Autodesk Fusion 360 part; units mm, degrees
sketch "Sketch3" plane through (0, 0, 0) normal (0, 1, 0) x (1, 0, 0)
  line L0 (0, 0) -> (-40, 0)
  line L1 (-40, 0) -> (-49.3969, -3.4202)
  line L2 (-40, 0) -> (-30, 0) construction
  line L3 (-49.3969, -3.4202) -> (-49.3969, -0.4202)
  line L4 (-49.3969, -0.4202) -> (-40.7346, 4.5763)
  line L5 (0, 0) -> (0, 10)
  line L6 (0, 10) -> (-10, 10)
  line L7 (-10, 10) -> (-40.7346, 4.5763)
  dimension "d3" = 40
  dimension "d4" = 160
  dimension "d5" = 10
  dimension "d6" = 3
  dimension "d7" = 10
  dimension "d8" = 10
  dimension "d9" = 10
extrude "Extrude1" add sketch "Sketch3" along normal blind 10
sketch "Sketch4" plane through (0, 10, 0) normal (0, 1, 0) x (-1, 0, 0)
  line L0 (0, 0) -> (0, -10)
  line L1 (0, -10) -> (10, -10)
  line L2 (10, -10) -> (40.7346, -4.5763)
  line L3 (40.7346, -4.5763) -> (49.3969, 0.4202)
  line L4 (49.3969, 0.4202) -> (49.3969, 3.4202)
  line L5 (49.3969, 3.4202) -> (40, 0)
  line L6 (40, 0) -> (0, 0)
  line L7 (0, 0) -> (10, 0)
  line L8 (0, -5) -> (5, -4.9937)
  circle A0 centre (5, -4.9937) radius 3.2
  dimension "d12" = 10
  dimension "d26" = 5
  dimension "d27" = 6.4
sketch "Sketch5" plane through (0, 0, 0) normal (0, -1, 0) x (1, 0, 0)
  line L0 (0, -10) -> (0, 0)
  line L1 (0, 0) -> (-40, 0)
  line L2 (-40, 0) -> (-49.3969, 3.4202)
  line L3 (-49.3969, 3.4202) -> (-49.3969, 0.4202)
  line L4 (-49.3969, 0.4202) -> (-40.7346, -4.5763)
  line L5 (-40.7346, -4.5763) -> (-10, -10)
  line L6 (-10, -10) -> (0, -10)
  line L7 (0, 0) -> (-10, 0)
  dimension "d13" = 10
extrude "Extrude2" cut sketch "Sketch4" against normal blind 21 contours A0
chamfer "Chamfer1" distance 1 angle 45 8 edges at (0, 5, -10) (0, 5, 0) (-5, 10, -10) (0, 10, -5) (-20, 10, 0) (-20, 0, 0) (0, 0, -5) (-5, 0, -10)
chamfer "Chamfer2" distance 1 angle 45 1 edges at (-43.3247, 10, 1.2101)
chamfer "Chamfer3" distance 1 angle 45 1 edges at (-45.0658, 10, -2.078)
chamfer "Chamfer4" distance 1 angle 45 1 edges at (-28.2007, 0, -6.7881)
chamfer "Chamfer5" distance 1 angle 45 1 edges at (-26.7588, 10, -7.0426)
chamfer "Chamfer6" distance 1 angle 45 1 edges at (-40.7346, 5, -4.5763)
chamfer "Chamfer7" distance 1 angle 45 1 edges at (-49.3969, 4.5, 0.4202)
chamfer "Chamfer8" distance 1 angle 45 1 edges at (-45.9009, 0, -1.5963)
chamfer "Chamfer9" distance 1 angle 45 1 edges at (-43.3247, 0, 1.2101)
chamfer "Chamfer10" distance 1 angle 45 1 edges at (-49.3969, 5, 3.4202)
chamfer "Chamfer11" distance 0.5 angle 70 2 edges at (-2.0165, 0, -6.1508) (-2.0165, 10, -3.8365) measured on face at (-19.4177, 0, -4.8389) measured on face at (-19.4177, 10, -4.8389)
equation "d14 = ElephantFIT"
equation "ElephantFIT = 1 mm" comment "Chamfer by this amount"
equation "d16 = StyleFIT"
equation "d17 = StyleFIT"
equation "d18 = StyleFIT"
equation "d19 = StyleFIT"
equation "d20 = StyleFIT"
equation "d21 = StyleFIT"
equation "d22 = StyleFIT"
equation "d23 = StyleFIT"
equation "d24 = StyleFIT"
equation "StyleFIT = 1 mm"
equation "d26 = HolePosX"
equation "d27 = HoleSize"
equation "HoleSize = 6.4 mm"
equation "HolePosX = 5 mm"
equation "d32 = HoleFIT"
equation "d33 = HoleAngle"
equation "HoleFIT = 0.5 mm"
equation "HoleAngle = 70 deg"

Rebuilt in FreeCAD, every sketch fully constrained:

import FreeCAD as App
import Part
import Sketcher

V = App.Vector
Q = App.Units.Quantity


def edges_at(feature, points):
    """Names of the edges that pass closest to the given points."""
    edges = feature.Shape.Edges
    near = lambda p: min(range(len(edges)), key=lambda i: edges[i].distToShape(Part.Vertex(*p))[0])
    return sorted({f"Edge{near(p) + 1}" for p in points})

doc = App.newDocument("Part")
body = doc.addObject("PartDesign::Body", "Body")

sketch1 = body.newObject("Sketcher::SketchObject", "Sketch")
sketch1.AttachmentSupport = (doc.getObject("XZ_Plane"), [""])
sketch1.MapMode = "FlatFace"
sketch1.addGeometry(Part.LineSegment(V(-40, 0, 0), V(0, 0, 0)), False)
sketch1.addGeometry(Part.LineSegment(V(0, 0, 0), V(0, -10, 0)), False)
sketch1.addGeometry(Part.LineSegment(V(0, -10, 0), V(-10, -10, 0)), False)
sketch1.addGeometry(Part.LineSegment(V(-10, -10, 0), V(-40.7, -4.6, 0)), False)
sketch1.addGeometry(Part.LineSegment(V(-40.7, -4.6, 0), V(-49.4, 0.4, 0)), False)
sketch1.addGeometry(Part.LineSegment(V(-49.4, 0.4, 0), V(-49.4, 3.4, 0)), False)
sketch1.addGeometry(Part.LineSegment(V(-49.4, 3.4, 0), V(-40, 0, 0)), False)
sketch1.addConstraint(Sketcher.Constraint("Coincident", 0, 2, 1, 1))
sketch1.addConstraint(Sketcher.Constraint("Coincident", 1, 2, 2, 1))
sketch1.addConstraint(Sketcher.Constraint("Coincident", 2, 2, 3, 1))
sketch1.addConstraint(Sketcher.Constraint("Coincident", 3, 2, 4, 1))
sketch1.addConstraint(Sketcher.Constraint("Coincident", 4, 2, 5, 1))
sketch1.addConstraint(Sketcher.Constraint("Coincident", 5, 2, 6, 1))
sketch1.addConstraint(Sketcher.Constraint("Coincident", 6, 2, 0, 1))
sketch1.addConstraint(Sketcher.Constraint("Horizontal", 0))
sketch1.addConstraint(Sketcher.Constraint("Vertical", 1))
sketch1.addConstraint(Sketcher.Constraint("Horizontal", 2))
sketch1.addConstraint(Sketcher.Constraint("Vertical", 5))
sketch1.addConstraint(Sketcher.Constraint("Coincident", 0, 2, -1, 1))
sketch1.addConstraint(Sketcher.Constraint("Equal", 2, 1))
sketch1.addConstraint(Sketcher.Constraint("Equal", 4, 6))
sketch1.addConstraint(Sketcher.Constraint("DistanceX", 0, 1, 0, 2, 40.0))
sketch1.addConstraint(Sketcher.Constraint("DistanceX", 2, 2, 2, 1, 10.0))
sketch1.addConstraint(Sketcher.Constraint("DistanceY", 5, 1, 5, 2, 3.0))
sketch1.addConstraint(Sketcher.Constraint("Distance", 4, 10.0))
sketch1.addConstraint(Sketcher.Constraint("Angle", 6, Q("-20 deg")))
sketch1.addConstraint(Sketcher.Constraint("Distance", 3, 31.2095))
pad1 = body.newObject("PartDesign::Pad", "Pad")
pad1.Profile = sketch1
pad1.Length = 10
pad1.Reversed = True

sketch2 = body.newObject("Sketcher::SketchObject", "Sketch001")
sketch2.AttachmentSupport = (doc.getObject("XZ_Plane"), [""])
sketch2.MapMode = "FlatFace"
sketch2.AttachmentOffset = App.Placement(V(0, 0, -10), App.Rotation())
sketch2.addGeometry(Part.Circle(V(-5, -5, 0), V(0, 0, 1), 3.2), False)
sketch2.addConstraint(Sketcher.Constraint("Diameter", 0, 6.4))
sketch2.addConstraint(Sketcher.Constraint("DistanceX", 0, 3, -1, 1, 5.0))
sketch2.addConstraint(Sketcher.Constraint("DistanceY", 0, 3, -1, 1, 4.9937))
pocket1 = body.newObject("PartDesign::Pocket", "Pocket")
pocket1.Profile = sketch2
pocket1.Length = 21
pocket1.Reversed = True
doc.recompute()

chamfer = body.newObject("PartDesign::Chamfer", "Chamfer")
chamfer.Base = (pocket1, edges_at(pocket1, [
    (0, 5, -10),
    (0, 5, 0),
    (-5, 10, -10),
    (0, 10, -5),
    (-20, 10, 0),
    (-20, 0, 0),
    (0, 0, -5),
    (-5, 0, -10),
]))
chamfer.Size = 1
doc.recompute()

chamfer2 = body.newObject("PartDesign::Chamfer", "Chamfer001")
chamfer2.Base = (chamfer, edges_at(chamfer, [(-43.325, 10, 1.21)]))
chamfer2.Size = 1
doc.recompute()

chamfer3 = body.newObject("PartDesign::Chamfer", "Chamfer002")
chamfer3.Base = (chamfer2, edges_at(chamfer2, [(-45.066, 10, -2.078)]))
chamfer3.Size = 1
doc.recompute()

chamfer4 = body.newObject("PartDesign::Chamfer", "Chamfer003")
chamfer4.Base = (chamfer3, edges_at(chamfer3, [(-28.201, 0, -6.788)]))
chamfer4.Size = 1
doc.recompute()

chamfer5 = body.newObject("PartDesign::Chamfer", "Chamfer004")
chamfer5.Base = (chamfer4, edges_at(chamfer4, [(-26.759, 10, -7.043)]))
chamfer5.Size = 1
doc.recompute()

chamfer6 = body.newObject("PartDesign::Chamfer", "Chamfer005")
chamfer6.Base = (chamfer5, edges_at(chamfer5, [(-40.735, 5, -4.576)]))
chamfer6.Size = 1
doc.recompute()

chamfer7 = body.newObject("PartDesign::Chamfer", "Chamfer006")
chamfer7.Base = (chamfer6, edges_at(chamfer6, [(-49.397, 4.5, 0.42)]))
chamfer7.Size = 1
doc.recompute()

chamfer8 = body.newObject("PartDesign::Chamfer", "Chamfer007")
chamfer8.Base = (chamfer7, edges_at(chamfer7, [(-45.901, 0, -1.596)]))
chamfer8.Size = 1
doc.recompute()

chamfer9 = body.newObject("PartDesign::Chamfer", "Chamfer008")
chamfer9.Base = (chamfer8, edges_at(chamfer8, [(-43.325, 0, 1.21)]))
chamfer9.Size = 1
doc.recompute()

chamfer10 = body.newObject("PartDesign::Chamfer", "Chamfer009")
chamfer10.Base = (chamfer9, edges_at(chamfer9, [(-49.397, 5, 3.42)]))
chamfer10.Size = 1
doc.recompute()

chamfer11 = body.newObject("PartDesign::Chamfer", "Chamfer010")
chamfer11.Base = (chamfer10, edges_at(chamfer10, [(-2.017, 0, -6.151), (-2.017, 10, -3.837)]))
chamfer11.ChamferType = "Distance and Angle"
chamfer11.Size = 0.5
chamfer11.Angle = 70

doc.recompute()
